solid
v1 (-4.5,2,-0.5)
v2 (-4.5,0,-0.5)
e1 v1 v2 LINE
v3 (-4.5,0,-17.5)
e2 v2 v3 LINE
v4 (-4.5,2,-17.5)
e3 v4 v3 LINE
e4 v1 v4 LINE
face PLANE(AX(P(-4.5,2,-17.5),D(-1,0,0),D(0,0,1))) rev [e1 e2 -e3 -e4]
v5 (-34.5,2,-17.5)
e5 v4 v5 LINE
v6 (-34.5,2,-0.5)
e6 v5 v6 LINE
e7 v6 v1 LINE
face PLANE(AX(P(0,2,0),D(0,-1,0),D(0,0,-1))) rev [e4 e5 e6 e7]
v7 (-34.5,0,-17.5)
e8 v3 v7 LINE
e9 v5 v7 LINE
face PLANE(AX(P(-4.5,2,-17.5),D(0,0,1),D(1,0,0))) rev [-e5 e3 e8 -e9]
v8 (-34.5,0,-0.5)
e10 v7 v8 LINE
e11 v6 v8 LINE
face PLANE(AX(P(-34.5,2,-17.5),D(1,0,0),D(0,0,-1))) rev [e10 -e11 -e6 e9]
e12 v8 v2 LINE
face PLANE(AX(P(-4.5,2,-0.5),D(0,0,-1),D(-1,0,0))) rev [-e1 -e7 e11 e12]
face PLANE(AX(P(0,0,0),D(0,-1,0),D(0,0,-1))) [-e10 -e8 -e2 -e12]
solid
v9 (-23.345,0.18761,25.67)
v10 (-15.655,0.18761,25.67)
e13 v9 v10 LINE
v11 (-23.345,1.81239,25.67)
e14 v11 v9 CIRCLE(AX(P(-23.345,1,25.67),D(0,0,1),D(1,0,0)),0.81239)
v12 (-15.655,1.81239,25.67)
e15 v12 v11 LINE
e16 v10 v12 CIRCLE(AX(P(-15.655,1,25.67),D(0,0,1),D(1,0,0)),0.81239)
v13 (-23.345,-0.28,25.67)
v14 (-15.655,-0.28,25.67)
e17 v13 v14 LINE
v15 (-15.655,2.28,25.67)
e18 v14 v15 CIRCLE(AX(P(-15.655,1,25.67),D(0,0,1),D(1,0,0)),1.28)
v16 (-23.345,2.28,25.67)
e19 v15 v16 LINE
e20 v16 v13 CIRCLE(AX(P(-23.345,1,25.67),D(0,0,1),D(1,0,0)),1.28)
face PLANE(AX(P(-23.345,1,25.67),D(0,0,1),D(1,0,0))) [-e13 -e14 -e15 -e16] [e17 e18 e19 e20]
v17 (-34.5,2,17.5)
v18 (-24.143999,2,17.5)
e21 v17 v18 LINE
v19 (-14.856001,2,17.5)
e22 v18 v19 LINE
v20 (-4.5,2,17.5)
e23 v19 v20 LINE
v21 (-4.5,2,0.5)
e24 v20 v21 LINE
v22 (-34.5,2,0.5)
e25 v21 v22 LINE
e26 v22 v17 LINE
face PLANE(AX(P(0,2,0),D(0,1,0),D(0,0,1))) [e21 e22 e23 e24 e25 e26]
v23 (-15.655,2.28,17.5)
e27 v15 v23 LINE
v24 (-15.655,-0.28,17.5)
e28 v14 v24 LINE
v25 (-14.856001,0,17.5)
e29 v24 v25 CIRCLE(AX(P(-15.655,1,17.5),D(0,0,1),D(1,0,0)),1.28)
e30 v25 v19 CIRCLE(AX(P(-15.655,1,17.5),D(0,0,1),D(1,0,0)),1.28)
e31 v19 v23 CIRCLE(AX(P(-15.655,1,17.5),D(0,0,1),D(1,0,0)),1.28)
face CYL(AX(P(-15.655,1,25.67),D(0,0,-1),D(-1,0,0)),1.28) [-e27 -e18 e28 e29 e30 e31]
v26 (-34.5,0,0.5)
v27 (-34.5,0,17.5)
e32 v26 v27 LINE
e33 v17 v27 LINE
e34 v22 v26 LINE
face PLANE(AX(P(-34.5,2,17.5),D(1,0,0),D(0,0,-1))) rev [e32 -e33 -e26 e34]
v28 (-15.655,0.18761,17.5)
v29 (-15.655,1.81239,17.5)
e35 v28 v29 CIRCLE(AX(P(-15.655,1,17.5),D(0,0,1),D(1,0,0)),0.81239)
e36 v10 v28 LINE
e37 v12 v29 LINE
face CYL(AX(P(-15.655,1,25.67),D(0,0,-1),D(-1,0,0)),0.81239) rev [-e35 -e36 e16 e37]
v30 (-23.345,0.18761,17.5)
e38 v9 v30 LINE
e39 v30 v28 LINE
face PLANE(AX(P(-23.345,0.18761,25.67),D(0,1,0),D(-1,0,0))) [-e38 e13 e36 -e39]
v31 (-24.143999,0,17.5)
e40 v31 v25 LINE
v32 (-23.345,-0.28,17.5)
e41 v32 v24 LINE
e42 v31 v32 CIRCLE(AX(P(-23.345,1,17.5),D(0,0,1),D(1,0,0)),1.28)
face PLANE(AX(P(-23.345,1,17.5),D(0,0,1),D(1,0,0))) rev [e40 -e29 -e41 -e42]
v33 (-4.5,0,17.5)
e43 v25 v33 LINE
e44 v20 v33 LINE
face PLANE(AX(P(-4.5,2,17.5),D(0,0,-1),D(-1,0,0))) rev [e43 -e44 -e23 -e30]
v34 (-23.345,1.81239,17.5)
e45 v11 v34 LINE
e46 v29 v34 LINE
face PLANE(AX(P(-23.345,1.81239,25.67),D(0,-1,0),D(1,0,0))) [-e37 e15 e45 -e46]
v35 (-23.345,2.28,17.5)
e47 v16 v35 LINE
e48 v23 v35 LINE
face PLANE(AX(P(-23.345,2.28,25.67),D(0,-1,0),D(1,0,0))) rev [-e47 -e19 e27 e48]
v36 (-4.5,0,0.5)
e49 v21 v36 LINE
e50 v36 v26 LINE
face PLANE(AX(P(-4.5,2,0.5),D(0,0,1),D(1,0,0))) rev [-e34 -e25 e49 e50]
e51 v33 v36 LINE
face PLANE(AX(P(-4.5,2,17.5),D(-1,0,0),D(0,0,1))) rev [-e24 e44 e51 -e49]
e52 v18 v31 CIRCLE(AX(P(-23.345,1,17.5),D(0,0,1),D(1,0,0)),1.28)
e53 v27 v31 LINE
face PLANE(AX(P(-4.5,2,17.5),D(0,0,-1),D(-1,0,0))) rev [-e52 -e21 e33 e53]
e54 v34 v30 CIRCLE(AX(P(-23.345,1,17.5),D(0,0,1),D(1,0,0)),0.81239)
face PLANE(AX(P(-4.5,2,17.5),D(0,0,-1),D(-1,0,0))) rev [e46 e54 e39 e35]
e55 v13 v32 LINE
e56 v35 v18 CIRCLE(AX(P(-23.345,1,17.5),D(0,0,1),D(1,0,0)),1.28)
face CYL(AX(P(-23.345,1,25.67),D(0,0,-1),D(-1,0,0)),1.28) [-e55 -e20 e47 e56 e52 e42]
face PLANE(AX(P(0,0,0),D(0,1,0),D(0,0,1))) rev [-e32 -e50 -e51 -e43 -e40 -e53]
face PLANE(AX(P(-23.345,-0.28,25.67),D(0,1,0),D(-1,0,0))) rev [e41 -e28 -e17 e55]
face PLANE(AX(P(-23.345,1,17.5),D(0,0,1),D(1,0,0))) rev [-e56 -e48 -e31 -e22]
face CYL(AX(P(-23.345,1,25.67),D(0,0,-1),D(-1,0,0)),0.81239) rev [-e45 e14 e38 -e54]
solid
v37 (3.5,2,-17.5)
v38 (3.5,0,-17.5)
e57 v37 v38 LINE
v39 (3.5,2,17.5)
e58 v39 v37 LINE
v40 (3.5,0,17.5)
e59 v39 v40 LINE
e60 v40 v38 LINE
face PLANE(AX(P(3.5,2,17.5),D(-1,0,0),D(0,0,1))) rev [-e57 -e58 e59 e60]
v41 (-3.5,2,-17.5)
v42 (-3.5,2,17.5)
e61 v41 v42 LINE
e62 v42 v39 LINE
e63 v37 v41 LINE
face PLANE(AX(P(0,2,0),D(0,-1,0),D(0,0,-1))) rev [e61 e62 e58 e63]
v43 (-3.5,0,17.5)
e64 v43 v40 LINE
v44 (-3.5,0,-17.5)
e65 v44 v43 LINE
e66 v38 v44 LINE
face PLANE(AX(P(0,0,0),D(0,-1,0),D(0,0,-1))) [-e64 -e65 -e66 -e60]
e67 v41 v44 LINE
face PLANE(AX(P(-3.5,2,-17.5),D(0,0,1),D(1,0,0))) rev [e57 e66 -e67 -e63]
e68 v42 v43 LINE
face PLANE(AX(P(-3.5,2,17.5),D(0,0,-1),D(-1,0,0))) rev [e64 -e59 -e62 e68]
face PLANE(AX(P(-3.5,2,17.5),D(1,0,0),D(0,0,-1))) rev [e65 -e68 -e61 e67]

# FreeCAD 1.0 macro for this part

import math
import FreeCAD as App
import Part
import Sketcher
from FreeCAD import Vector
Q = App.Units.Quantity


def add_polygon(sketch, points):
    """Adds a closed chain of lines whose ends are joined by coincident constraints."""
    first, n = sketch.GeometryCount, len(points)
    for a, b in zip(points, points[1:] + points[:1]):
        sketch.addGeometry(Part.LineSegment(App.Vector(*a, 0), App.Vector(*b, 0)), False)
    for i in range(n):
        sketch.addConstraint(Sketcher.Constraint("Coincident", first + i, 2, first + (i + 1) % n, 1))

doc = App.newDocument("Part")
body = doc.addObject("PartDesign::Body", "Body")

sketch1 = body.newObject("Sketcher::SketchObject", "Sketch")
sketch1.AttachmentSupport = (doc.getObject("XZ_Plane"), [""])
sketch1.MapMode = "FlatFace"
add_polygon(sketch1, [(-4, -18), (-4, 18), (4, 18), (4, -18)])
sketch1.addConstraint([
    Sketcher.Constraint("Vertical", 0),
    Sketcher.Constraint("Horizontal", 1),
    Sketcher.Constraint("Vertical", 2),
    Sketcher.Constraint("Horizontal", 3),
    Sketcher.Constraint("Symmetric", 0, 2, 2, 2, -1, 1),
    Sketcher.Constraint("DistanceX", 1, 1, 1, 2, Q("7 mm")),
    Sketcher.Constraint("DistanceY", 0, 1, 0, 2, Q("35 mm")),
])
pad1 = body.newObject("PartDesign::Pad", "Pad")
pad1.Profile = sketch1
pad1.Length = 2
pad1.Reversed = True
body2 = doc.addObject("PartDesign::Body", "Body001")

sketch2 = body2.newObject("Sketcher::SketchObject", "Sketch001")
sketch2.AttachmentSupport = (doc.getObject("XZ_Plane001"), [""])
sketch2.MapMode = "FlatFace"
add_polygon(sketch2, [(-34, -18), (-34, 0), (-4, 0), (-4, -18)])
sketch2.addConstraint([
    Sketcher.Constraint("Vertical", 0),
    Sketcher.Constraint("Horizontal", 1),
    Sketcher.Constraint("Vertical", 2),
    Sketcher.Constraint("Horizontal", 3),
    Sketcher.Constraint("DistanceX", 1, 1, 1, 2, Q("30 mm")),
    Sketcher.Constraint("DistanceY", 0, 1, 0, 2, Q("17 mm")),
    Sketcher.Constraint("DistanceX", 0, 2, -1, 1, Q("34.5 mm")),
    Sketcher.Constraint("DistanceY", 0, 2, -1, 1, Q("0.5 mm")),
])
pad2 = body2.newObject("PartDesign::Pad", "Pad001")
pad2.Profile = sketch2
pad2.Length = 2
pad2.Reversed = True
body3 = doc.addObject("PartDesign::Body", "Body002")

sketch3 = body3.newObject("Sketcher::SketchObject", "Sketch002")
sketch3.AttachmentSupport = (doc.getObject("XZ_Plane002"), [""])
sketch3.MapMode = "FlatFace"
add_polygon(sketch3, [(-34, 0), (-34, 18), (-4, 18), (-4, 0)])
sketch3.addConstraint([
    Sketcher.Constraint("Vertical", 0),
    Sketcher.Constraint("Horizontal", 1),
    Sketcher.Constraint("Vertical", 2),
    Sketcher.Constraint("Horizontal", 3),
    Sketcher.Constraint("DistanceX", 1, 1, 1, 2, Q("30 mm")),
    Sketcher.Constraint("DistanceY", 0, 1, 0, 2, Q("17 mm")),
    Sketcher.Constraint("DistanceX", 0, 2, -1, 1, Q("34.5 mm")),
    Sketcher.Constraint("DistanceY", -1, 1, 0, 2, Q("17.5 mm")),
])
pad3 = body3.newObject("PartDesign::Pad", "Pad002")
pad3.Profile = sketch3
pad3.Length = 2
pad3.Reversed = True

sketch4 = body3.newObject("Sketcher::SketchObject", "Sketch003")
sketch4.AttachmentSupport = (doc.getObject("XY_Plane002"), [""])
sketch4.MapMode = "FlatFace"
sketch4.AttachmentOffset = App.Placement(Vector(0, 0, 17.5), App.Rotation())
sketch4.addGeometry([
    Part.LineSegment(Vector(-15.7, 2.3, 0), Vector(-23.3, 2.3, 0)),
    Part.ArcOfCircle(Part.Circle(Vector(-23.3, 1, 0), Vector(0, 0, 1), 1.3), math.radians(90), math.radians(270)),
    Part.LineSegment(Vector(-23.3, -0.3, 0), Vector(-15.7, -0.3, 0)),
    Part.ArcOfCircle(Part.Circle(Vector(-15.7, 1, 0), Vector(0, 0, 1), 1.3), math.radians(-90), math.radians(90)),
    Part.LineSegment(Vector(-23.3, 1.8, 0), Vector(-15.7, 1.8, 0)),
    Part.ArcOfCircle(Part.Circle(Vector(-15.7, 1, 0), Vector(0, 0, 1), 0.8), math.radians(-90), math.radians(90)),
    Part.LineSegment(Vector(-15.7, 0.2, 0), Vector(-23.3, 0.2, 0)),
    Part.ArcOfCircle(Part.Circle(Vector(-23.3, 1, 0), Vector(0, 0, 1), 0.8), math.radians(90), math.radians(270)),
], False)
sketch4.addConstraint([
    Sketcher.Constraint("Tangent", 0, 2, 1, 1),
    Sketcher.Constraint("Tangent", 1, 2, 2, 1),
    Sketcher.Constraint("Tangent", 2, 2, 3, 1),
    Sketcher.Constraint("Tangent", 3, 2, 0, 1),
    Sketcher.Constraint("Tangent", 4, 2, 5, 2),
    Sketcher.Constraint("Tangent", 5, 1, 6, 1),
    Sketcher.Constraint("Tangent", 6, 2, 7, 2),
    Sketcher.Constraint("Tangent", 7, 1, 4, 1),
    Sketcher.Constraint("Horizontal", 0),
    Sketcher.Constraint("Horizontal", 2),
    Sketcher.Constraint("Horizontal", 4),
    Sketcher.Constraint("Horizontal", 6),
    Sketcher.Constraint("Coincident", 5, 3, 3, 3),
    Sketcher.Constraint("Vertical", 7, 3, 0, 2),
    Sketcher.Constraint("Radius", 1, Q("1.28 mm")),
    Sketcher.Constraint("DistanceY", -1, 1, 1, 3, Q("1 mm")),
    Sketcher.Constraint("DistanceX", 0, 2, 0, 1, Q("7.69 mm")),
    Sketcher.Constraint("Radius", 5, Q("0.81239 mm")),
    Sketcher.Constraint("DistanceX", 1, 3, -1, 1, Q("23.345 mm")),
])
pad4 = body3.newObject("PartDesign::Pad", "Pad003")
pad4.Profile = sketch4
pad4.Length = 8.17

doc.recompute()
